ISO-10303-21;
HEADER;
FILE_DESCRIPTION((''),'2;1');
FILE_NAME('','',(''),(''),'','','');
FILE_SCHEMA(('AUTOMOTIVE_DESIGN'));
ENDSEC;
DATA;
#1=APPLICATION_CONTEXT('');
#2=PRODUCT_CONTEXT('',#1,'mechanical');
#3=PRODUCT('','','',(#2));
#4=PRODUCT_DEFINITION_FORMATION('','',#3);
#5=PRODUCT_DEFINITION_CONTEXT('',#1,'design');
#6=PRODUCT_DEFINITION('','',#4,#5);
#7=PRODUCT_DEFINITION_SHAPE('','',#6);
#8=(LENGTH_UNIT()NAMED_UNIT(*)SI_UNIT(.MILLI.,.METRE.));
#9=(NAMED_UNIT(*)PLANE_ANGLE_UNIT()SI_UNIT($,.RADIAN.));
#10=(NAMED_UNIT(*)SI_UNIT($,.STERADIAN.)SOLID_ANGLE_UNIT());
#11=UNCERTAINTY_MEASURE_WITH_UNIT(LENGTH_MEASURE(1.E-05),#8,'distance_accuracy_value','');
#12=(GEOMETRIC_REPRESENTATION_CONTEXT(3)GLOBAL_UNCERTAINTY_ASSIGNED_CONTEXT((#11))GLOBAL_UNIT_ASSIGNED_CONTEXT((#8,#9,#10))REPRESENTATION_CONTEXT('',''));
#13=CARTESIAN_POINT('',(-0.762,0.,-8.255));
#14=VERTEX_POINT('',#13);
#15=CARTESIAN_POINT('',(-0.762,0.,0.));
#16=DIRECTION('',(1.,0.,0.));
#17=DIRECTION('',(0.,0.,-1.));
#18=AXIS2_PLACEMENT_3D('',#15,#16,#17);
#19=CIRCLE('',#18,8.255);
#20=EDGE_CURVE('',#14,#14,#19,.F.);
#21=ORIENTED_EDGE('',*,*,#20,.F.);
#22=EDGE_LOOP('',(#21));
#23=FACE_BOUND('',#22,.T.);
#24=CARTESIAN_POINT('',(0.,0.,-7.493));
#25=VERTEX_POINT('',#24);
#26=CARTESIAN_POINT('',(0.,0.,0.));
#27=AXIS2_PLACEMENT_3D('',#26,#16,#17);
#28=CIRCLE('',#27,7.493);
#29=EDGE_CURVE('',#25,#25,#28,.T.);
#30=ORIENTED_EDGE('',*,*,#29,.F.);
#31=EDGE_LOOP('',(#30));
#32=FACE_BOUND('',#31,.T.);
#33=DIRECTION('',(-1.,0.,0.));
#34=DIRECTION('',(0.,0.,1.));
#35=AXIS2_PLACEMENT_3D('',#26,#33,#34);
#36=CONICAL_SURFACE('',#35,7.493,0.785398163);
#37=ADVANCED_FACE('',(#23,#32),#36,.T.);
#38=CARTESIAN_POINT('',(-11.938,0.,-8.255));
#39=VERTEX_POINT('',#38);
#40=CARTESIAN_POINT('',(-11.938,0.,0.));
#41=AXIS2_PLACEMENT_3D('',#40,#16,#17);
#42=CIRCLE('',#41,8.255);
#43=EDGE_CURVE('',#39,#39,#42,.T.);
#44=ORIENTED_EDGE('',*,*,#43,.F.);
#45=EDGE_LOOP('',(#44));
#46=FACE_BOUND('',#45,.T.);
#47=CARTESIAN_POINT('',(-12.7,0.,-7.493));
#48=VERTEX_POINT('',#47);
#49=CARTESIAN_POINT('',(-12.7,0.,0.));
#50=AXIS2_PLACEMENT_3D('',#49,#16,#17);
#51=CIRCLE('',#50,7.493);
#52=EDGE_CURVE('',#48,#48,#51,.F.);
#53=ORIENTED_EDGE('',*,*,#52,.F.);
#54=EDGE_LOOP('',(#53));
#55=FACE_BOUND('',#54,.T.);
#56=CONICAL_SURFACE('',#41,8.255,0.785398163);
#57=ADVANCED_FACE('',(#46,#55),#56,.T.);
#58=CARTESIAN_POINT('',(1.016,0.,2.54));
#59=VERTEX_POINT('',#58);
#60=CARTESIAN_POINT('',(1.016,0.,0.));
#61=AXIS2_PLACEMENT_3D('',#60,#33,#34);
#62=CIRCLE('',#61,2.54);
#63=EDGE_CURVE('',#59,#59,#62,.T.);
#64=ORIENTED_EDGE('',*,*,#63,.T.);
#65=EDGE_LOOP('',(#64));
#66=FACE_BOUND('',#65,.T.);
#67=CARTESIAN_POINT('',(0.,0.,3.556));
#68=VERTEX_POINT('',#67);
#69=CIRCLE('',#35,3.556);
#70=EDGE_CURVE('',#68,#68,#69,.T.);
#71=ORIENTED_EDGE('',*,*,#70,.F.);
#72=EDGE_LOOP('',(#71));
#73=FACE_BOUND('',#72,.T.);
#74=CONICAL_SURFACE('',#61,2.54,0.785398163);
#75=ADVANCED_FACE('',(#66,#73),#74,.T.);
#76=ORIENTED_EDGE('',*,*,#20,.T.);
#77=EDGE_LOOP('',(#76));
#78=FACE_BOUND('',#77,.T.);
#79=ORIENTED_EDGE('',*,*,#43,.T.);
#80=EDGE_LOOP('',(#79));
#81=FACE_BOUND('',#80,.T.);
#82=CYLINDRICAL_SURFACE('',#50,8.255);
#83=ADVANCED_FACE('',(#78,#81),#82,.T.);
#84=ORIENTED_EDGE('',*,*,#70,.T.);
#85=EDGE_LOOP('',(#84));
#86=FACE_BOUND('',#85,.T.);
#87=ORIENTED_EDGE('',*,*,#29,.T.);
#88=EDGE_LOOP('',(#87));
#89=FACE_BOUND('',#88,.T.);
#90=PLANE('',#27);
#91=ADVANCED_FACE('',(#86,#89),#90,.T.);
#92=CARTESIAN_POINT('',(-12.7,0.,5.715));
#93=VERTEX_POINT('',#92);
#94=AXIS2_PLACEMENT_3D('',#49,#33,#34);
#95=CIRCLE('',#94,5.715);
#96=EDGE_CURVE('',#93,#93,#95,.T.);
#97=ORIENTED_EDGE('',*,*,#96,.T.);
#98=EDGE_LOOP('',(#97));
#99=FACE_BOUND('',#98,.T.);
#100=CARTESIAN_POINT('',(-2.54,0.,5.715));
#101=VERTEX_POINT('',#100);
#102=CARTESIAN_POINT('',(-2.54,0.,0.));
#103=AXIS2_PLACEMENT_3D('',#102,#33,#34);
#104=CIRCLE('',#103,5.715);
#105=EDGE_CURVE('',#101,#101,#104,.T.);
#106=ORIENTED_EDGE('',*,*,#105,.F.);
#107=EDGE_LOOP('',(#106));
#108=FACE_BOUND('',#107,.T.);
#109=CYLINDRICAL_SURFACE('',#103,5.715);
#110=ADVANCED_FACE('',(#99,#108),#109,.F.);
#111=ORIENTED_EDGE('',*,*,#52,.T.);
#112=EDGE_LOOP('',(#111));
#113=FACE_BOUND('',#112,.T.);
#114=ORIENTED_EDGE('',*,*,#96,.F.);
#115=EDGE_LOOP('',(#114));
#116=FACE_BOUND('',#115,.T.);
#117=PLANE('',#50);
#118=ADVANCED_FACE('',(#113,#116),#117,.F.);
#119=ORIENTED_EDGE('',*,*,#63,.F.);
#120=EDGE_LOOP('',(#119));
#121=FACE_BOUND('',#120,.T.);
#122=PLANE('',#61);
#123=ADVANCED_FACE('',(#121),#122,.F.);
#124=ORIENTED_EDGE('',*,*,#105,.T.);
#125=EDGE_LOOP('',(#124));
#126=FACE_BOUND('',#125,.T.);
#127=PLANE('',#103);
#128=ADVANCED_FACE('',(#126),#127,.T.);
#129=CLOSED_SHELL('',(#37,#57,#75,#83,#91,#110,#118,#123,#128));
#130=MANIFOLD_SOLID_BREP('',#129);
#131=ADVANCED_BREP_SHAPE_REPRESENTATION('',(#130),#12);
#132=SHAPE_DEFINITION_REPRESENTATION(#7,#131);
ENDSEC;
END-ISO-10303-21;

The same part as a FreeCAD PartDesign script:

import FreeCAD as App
import Part
import Sketcher

V = App.Vector
Q = App.Units.Quantity


def edges_at(feature, points):
    """Names of the edges that pass closest to the given points."""
    edges = feature.Shape.Edges
    near = lambda p: min(range(len(edges)), key=lambda i: edges[i].distToShape(Part.Vertex(*p))[0])
    return sorted({f"Edge{near(p) + 1}" for p in points})


def add_polygon(sketch, points):
    """Adds a closed chain of lines whose ends are joined by coincident constraints."""
    first, n = sketch.GeometryCount, len(points)
    for a, b in zip(points, points[1:] + points[:1]):
        sketch.addGeometry(Part.LineSegment(App.Vector(*a, 0), App.Vector(*b, 0)), False)
    for i in range(n):
        sketch.addConstraint(Sketcher.Constraint("Coincident", first + i, 2, first + (i + 1) % n, 1))

doc = App.newDocument("Part")
params = doc.addObject("Spreadsheet::Sheet", "Params")
for row, (alias, value) in enumerate([
    ("sketch1_diameter", "0.65 in"),
    ("pad1_length", "0.5 in"),
    ("sketch2_diameter", "0.45 in"),
    ("pocket1_length", "0.4 in"),
    ("chamfer_size", "0.03 in"),
    ("sketch3_height", "0.1 in"),
    ("sketch3_width", "0.04 in"),
    ("revolution_angle", "360 deg"),
], start=1):
    params.set(f"A{row}", alias)
    params.set(f"B{row}", "=" + value)
    params.setAlias(f"B{row}", alias)

body = doc.addObject("PartDesign::Body", "Body")

# Sketch on YZ plane
sketch1 = body.newObject("Sketcher::SketchObject", "Sketch")
sketch1.AttachmentSupport = (doc.getObject("YZ_Plane"), [""])
sketch1.MapMode = "FlatFace"
sketch1.addGeometry(Part.Circle(V(0, 0, 0), V(0, 0, 1), 8.255), False)
sketch1.addConstraint([
    Sketcher.Constraint("Coincident", 0, 3, -1, 1),
    Sketcher.Constraint("Diameter", 0, Q("0.65 in")),
])
sketch1.setExpression("Constraints[1]", "Params.sketch1_diameter")
pad1 = body.newObject("PartDesign::Pad", "Pad")
pad1.Profile = sketch1
pad1.setExpression("Length", "Params.pad1_length")
pad1.Reversed = True

# Sketch on YZ plane
sketch2 = body.newObject("Sketcher::SketchObject", "Sketch001")
sketch2.AttachmentSupport = (doc.getObject("YZ_Plane"), [""])
sketch2.MapMode = "FlatFace"
sketch2.AttachmentOffset = App.Placement(V(0, 0, -0.5 * 25.4), App.Rotation())
sketch2.addGeometry(Part.Circle(V(0, 0, 0), V(0, 0, 1), 5.715), False)
sketch2.addConstraint([
    Sketcher.Constraint("Coincident", 0, 3, -1, 1),
    Sketcher.Constraint("Diameter", 0, Q("0.45 in")),
])
sketch2.setExpression("Constraints[1]", "Params.sketch2_diameter")
pocket1 = body.newObject("PartDesign::Pocket", "Pocket")
pocket1.Profile = sketch2
pocket1.setExpression("Length", "Params.pocket1_length")
pocket1.Reversed = True
doc.recompute()

chamfer = body.newObject("PartDesign::Chamfer", "Chamfer")
chamfer.Base = (pocket1, edges_at(pocket1, [(0, 0, 8.255), (-12.7, 0, 8.255)]))
chamfer.setExpression("Size", "Params.chamfer_size")

# Sketch on XZ plane
sketch3 = body.newObject("Sketcher::SketchObject", "Sketch002")
sketch3.AttachmentSupport = (doc.getObject("XZ_Plane"), [""])
sketch3.MapMode = "FlatFace"
add_polygon(sketch3, [(0, 0), (1.016, 0), (1.016, -2.54), (0, -3.556)])  # lines 0-3
sketch3.addConstraint([
    Sketcher.Constraint("Horizontal", 0),
    Sketcher.Constraint("Vertical", 1),
    Sketcher.Constraint("Vertical", 3),
    Sketcher.Constraint("Coincident", 3, 2, -1, 1),
    Sketcher.Constraint("DistanceY", 1, 2, 1, 1, Q("0.1 in")),
    Sketcher.Constraint("Angle", 2, Q("-135 deg")),
    Sketcher.Constraint("DistanceX", 0, 1, 0, 2, Q("0.04 in")),
])
sketch3.setExpression("Constraints[8]", "Params.sketch3_height")
sketch3.setExpression("Constraints[10]", "Params.sketch3_width")
revolution = body.newObject("PartDesign::Revolution", "Revolution")
revolution.Profile = sketch3
revolution.ReferenceAxis = (sketch3, ["H_Axis"])
revolution.setExpression("Angle", "Params.revolution_angle")

doc.recompute()
